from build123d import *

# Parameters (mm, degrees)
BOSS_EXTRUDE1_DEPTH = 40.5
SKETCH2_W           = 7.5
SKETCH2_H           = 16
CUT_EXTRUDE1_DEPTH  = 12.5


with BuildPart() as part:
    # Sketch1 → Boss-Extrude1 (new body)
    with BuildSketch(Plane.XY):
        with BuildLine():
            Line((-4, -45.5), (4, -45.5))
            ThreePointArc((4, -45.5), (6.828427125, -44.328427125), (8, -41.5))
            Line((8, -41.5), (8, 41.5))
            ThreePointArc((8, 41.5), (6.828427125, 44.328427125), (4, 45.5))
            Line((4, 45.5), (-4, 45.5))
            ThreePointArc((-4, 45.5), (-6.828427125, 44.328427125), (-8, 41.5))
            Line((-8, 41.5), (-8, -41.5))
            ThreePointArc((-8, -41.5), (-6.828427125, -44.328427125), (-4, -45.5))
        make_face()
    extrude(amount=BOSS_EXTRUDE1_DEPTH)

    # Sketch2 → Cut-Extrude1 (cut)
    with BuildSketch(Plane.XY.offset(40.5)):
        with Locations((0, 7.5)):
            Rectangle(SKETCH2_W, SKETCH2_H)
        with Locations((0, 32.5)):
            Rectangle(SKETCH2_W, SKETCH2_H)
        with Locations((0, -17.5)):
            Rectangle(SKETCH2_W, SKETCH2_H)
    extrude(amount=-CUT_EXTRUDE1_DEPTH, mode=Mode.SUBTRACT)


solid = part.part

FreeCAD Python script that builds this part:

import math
import FreeCAD as App
import Part
import Sketcher

V = App.Vector


def add_polygon(sketch, points):
    """Adds a closed chain of lines whose ends are joined by coincident constraints."""
    first, n = sketch.GeometryCount, len(points)
    for a, b in zip(points, points[1:] + points[:1]):
        sketch.addGeometry(Part.LineSegment(App.Vector(*a, 0), App.Vector(*b, 0)), False)
    for i in range(n):
        sketch.addConstraint(Sketcher.Constraint("Coincident", first + i, 2, first + (i + 1) % n, 1))

doc = App.newDocument("Part")
body = doc.addObject("PartDesign::Body", "Body")

# Sketch on XY plane
sketch1 = body.newObject("Sketcher::SketchObject", "Sketch")
sketch1.AttachmentSupport = (doc.getObject("XY_Plane"), [""])
sketch1.MapMode = "FlatFace"
sketch1.addGeometry([
    Part.LineSegment(V(-4, -45.5, 0), V(4, -45.5, 0)),  # 0
    Part.ArcOfCircle(Part.Circle(V(4, -41.5, 0), V(0, 0, 1), 4), math.radians(-90), math.radians(0)),  # 1
    Part.LineSegment(V(8, -41.5, 0), V(8, 41.5, 0)),  # 2
    Part.ArcOfCircle(Part.Circle(V(4, 41.5, 0), V(0, 0, 1), 4), math.radians(0), math.radians(90)),  # 3
    Part.LineSegment(V(4, 45.5, 0), V(-4, 45.5, 0)),  # 4
    Part.ArcOfCircle(Part.Circle(V(-4, 41.5, 0), V(0, 0, 1), 4), math.radians(90), math.radians(180)),  # 5
    Part.LineSegment(V(-8, 41.5, 0), V(-8, -41.5, 0)),  # 6
    Part.ArcOfCircle(Part.Circle(V(-4, -41.5, 0), V(0, 0, 1), 4), math.radians(180), math.radians(270)),  # 7
], False)
sketch1.addConstraint([
    Sketcher.Constraint("Tangent", 0, 2, 1, 1),
    Sketcher.Constraint("Tangent", 1, 2, 2, 1),
    Sketcher.Constraint("Tangent", 2, 2, 3, 1),
    Sketcher.Constraint("Tangent", 3, 2, 4, 1),
    Sketcher.Constraint("Tangent", 4, 2, 5, 1),
    Sketcher.Constraint("Tangent", 5, 2, 6, 1),
    Sketcher.Constraint("Tangent", 6, 2, 7, 1),
    Sketcher.Constraint("Tangent", 7, 2, 0, 1),
    Sketcher.Constraint("Horizontal", 0),
    Sketcher.Constraint("Vertical", 2),
    Sketcher.Constraint("Horizontal", 4),
    Sketcher.Constraint("Vertical", 6),
    Sketcher.Constraint("Equal", 1, 3),
    Sketcher.Constraint("Equal", 3, 5),
    Sketcher.Constraint("Equal", 5, 7),
    Sketcher.Constraint("Symmetric", 1, 3, 5, 3, -1, 1),
    Sketcher.Constraint("Radius", 1, 4.0),
    Sketcher.Constraint("DistanceX", 0, 1, 0, 2, 8.0),
    Sketcher.Constraint("DistanceY", 2, 1, 2, 2, 83.0),
])
pad1 = body.newObject("PartDesign::Pad", "Pad")
pad1.Profile = sketch1
pad1.Length = 40.5

# Sketch on XY plane
sketch2 = body.newObject("Sketcher::SketchObject", "Sketch001")
sketch2.AttachmentSupport = (doc.getObject("XY_Plane"), [""])
sketch2.MapMode = "FlatFace"
sketch2.AttachmentOffset = App.Placement(V(0, 0, 40.5), App.Rotation())
add_polygon(sketch2, [(-4, 16), (-4, 0), (4, 0), (4, 16)])  # lines 0-3
add_polygon(sketch2, [(-4, 40), (-4, 24), (4, 24), (4, 40)])  # lines 4-7
add_polygon(sketch2, [(-4, -10), (-4, -26), (4, -26), (4, -10)])  # lines 8-11
sketch2.addConstraint([
    Sketcher.Constraint("Vertical", 0),
    Sketcher.Constraint("Horizontal", 1),
    Sketcher.Constraint("Vertical", 2),
    Sketcher.Constraint("Horizontal", 3),
    Sketcher.Constraint("Vertical", 4),
    Sketcher.Constraint("Horizontal", 5),
    Sketcher.Constraint("Vertical", 6),
    Sketcher.Constraint("Horizontal", 7),
    Sketcher.Constraint("Vertical", 8),
    Sketcher.Constraint("Horizontal", 9),
    Sketcher.Constraint("Vertical", 10),
    Sketcher.Constraint("Horizontal", 11),
    Sketcher.Constraint("Vertical", 3, 2, 4, 2),
    Sketcher.Constraint("Vertical", 2, 2, 5, 2),
    Sketcher.Constraint("Vertical", 7, 2, 8, 2),
    Sketcher.Constraint("Vertical", 6, 2, 9, 2),
    Sketcher.Constraint("Equal", 2, 4),
    Sketcher.Constraint("Equal", 6, 8),
    Sketcher.Constraint("DistanceY", 0, 2, 0, 1, 16.0),
    Sketcher.Constraint("DistanceX", 1, 1, 1, 2, 7.5),
    Sketcher.Constraint("DistanceY", 3, 2, 4, 2, 9.0),
    Sketcher.Constraint("DistanceY", 8, 2, 0, 2, 25.0),
    Sketcher.Constraint("DistanceY", 0, 2, -1, 1, 0.5),
    Sketcher.Constraint("DistanceX", 0, 2, -1, 1, 3.75),
])
pocket1 = body.newObject("PartDesign::Pocket", "Pocket")
pocket1.Profile = sketch2
pocket1.Length = 12.5

doc.recompute()
